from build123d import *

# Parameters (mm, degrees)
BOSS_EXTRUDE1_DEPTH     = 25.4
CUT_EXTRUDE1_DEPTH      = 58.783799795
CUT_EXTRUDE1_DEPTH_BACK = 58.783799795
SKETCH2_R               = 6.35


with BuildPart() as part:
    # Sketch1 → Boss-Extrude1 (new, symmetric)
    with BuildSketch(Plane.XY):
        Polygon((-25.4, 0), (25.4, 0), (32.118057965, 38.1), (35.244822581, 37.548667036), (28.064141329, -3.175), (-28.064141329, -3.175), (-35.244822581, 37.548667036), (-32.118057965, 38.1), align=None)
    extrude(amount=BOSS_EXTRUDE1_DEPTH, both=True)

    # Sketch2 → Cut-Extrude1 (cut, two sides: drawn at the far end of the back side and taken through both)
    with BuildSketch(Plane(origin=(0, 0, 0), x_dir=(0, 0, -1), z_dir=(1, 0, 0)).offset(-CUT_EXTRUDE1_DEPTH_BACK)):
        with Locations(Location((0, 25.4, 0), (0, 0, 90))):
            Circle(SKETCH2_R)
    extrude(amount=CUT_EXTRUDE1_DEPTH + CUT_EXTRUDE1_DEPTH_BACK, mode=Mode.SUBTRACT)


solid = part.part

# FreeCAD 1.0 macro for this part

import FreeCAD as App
import Part
import Sketcher
Q = App.Units.Quantity


def add_polygon(sketch, points):
    """Adds a closed chain of lines whose ends are joined by coincident constraints."""
    first, n = sketch.GeometryCount, len(points)
    for a, b in zip(points, points[1:] + points[:1]):
        sketch.addGeometry(Part.LineSegment(App.Vector(*a, 0), App.Vector(*b, 0)), False)
    for i in range(n):
        sketch.addConstraint(Sketcher.Constraint("Coincident", first + i, 2, first + (i + 1) % n, 1))

doc = App.newDocument("Part")
body = doc.addObject("PartDesign::Body", "Body")

sketch1 = body.newObject("Sketcher::SketchObject", "Sketch")
sketch1.AttachmentSupport = (doc.getObject("XY_Plane"), [""])
sketch1.MapMode = "FlatFace"
add_polygon(sketch1, [(25.4, 0), (-25.4, 0), (-32.1, 38.1), (-35.2, 37.5), (-28.1, -3.2), (28.1, -3.2), (35.2, 37.5), (32.1, 38.1)])
sketch1.addConstraint(Sketcher.Constraint("Horizontal", 0))
sketch1.addConstraint(Sketcher.Constraint("Horizontal", 4))
sketch1.addConstraint(Sketcher.Constraint("Symmetric", 0, 2, 7, 2, -1, 1))
sketch1.addConstraint(Sketcher.Constraint("Symmetric", 2, 2, 5, 2, -2))
sketch1.addConstraint(Sketcher.Constraint("Symmetric", 1, 2, 6, 2, -2))
sketch1.addConstraint(Sketcher.Constraint("Perpendicular", 1, 2))
sketch1.addConstraint(Sketcher.Constraint("Perpendicular", 2, 3))
sketch1.addConstraint(Sketcher.Constraint("Perpendicular", 5, 6))
sketch1.addConstraint(Sketcher.Constraint("DistanceX", 0, 2, 0, 1, Q("2 in")))
sketch1.addConstraint(Sketcher.Constraint("Angle", 1, Q("100 deg")))
sketch1.addConstraint(Sketcher.Constraint("DistanceY", -1, 1, 1, 2, Q("1.5 in")))
sketch1.addConstraint(Sketcher.Constraint("Distance", 2, Q("0.125 in")))
sketch1.addConstraint(Sketcher.Constraint("DistanceY", 3, 2, -1, 1, Q("0.125 in")))
pad1 = body.newObject("PartDesign::Pad", "Pad")
pad1.Profile = sketch1
pad1.Length = Q("2 in")
pad1.Midplane = True

sketch2 = body.newObject("Sketcher::SketchObject", "Sketch001")
sketch2.AttachmentSupport = (doc.getObject("YZ_Plane"), [""])
sketch2.MapMode = "FlatFace"
sketch2.addGeometry(Part.Circle(App.Vector(25, 0, 0), App.Vector(0, 0, 1), 6), False)
sketch2.addConstraint(Sketcher.Constraint("PointOnObject", 0, 3, -1))
sketch2.addConstraint(Sketcher.Constraint("Diameter", 0, Q("0.5 in")))
sketch2.addConstraint(Sketcher.Constraint("DistanceX", -1, 1, 0, 3, Q("1 in")))
pocket1 = body.newObject("PartDesign::Pocket", "Pocket")
pocket1.Profile = sketch2
pocket1.Type = "ThroughAll"
pocket1.Midplane = True

doc.recompute()
